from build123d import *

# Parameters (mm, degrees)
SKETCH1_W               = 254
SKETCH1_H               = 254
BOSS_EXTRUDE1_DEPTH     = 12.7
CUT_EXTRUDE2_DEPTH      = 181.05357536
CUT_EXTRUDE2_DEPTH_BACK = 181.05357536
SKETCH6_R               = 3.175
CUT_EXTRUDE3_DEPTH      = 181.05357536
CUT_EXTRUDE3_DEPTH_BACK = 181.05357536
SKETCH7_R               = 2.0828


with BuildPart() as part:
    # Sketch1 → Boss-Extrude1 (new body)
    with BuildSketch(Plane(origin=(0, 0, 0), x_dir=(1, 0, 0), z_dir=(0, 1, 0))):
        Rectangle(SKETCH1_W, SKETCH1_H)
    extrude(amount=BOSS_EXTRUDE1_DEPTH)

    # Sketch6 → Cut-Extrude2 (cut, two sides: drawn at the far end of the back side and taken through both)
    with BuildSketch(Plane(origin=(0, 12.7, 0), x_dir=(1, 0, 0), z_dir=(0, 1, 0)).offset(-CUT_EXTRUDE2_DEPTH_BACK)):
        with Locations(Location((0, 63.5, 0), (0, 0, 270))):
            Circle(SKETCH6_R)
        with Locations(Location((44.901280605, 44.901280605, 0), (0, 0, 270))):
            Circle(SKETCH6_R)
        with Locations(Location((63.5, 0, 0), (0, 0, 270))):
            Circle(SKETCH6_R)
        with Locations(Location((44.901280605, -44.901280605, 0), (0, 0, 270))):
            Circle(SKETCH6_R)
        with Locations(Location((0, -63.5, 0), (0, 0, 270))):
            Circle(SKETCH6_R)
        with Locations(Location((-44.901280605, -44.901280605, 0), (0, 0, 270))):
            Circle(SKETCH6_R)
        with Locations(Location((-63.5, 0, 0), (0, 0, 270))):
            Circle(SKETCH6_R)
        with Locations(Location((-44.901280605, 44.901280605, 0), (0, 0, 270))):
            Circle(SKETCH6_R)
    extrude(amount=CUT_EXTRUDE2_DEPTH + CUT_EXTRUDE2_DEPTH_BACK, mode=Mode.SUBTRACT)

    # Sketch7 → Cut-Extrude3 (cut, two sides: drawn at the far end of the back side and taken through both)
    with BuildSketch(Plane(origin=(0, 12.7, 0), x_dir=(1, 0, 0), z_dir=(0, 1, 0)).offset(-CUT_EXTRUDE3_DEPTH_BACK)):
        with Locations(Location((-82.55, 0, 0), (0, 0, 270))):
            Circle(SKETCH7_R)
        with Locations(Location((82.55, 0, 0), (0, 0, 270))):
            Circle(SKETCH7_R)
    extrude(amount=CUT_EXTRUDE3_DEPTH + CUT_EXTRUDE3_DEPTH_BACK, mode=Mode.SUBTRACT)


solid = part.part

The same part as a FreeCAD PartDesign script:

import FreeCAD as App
import Part
import Sketcher
from FreeCAD import Vector
Q = App.Units.Quantity


def add_polygon(sketch, points):
    """Adds a closed chain of lines whose ends are joined by coincident constraints."""
    first, n = sketch.GeometryCount, len(points)
    for a, b in zip(points, points[1:] + points[:1]):
        sketch.addGeometry(Part.LineSegment(App.Vector(*a, 0), App.Vector(*b, 0)), False)
    for i in range(n):
        sketch.addConstraint(Sketcher.Constraint("Coincident", first + i, 2, first + (i + 1) % n, 1))

doc = App.newDocument("Part")
body = doc.addObject("PartDesign::Body", "Body")

# Sketch on XZ plane
sketch1 = body.newObject("Sketcher::SketchObject", "Sketch")
sketch1.AttachmentSupport = (doc.getObject("XZ_Plane"), [""])
sketch1.MapMode = "FlatFace"
add_polygon(sketch1, [(-127, -127), (-127, 127), (127, 127), (127, -127)])  # lines 0-3
sketch1.addConstraint(Sketcher.Constraint("Vertical", 0))
sketch1.addConstraint(Sketcher.Constraint("Horizontal", 1))
sketch1.addConstraint(Sketcher.Constraint("Vertical", 2))
sketch1.addConstraint(Sketcher.Constraint("Horizontal", 3))
sketch1.addConstraint(Sketcher.Constraint("Symmetric", 0, 2, 2, 2, -1, 1))
sketch1.addConstraint(Sketcher.Constraint("Equal", 3, 0))
sketch1.addConstraint(Sketcher.Constraint("DistanceX", 1, 1, 1, 2, Q("10 in")))
pad1 = body.newObject("PartDesign::Pad", "Pad")
pad1.Profile = sketch1
pad1.Length = Q("0.5 in")
pad1.Reversed = True

# Sketch on XZ plane
sketch2 = body.newObject("Sketcher::SketchObject", "Sketch001")
sketch2.AttachmentSupport = (doc.getObject("XZ_Plane"), [""])
sketch2.MapMode = "FlatFace"
sketch2.AttachmentOffset = App.Placement(Vector(0, 0, -0.5 * 25.4), App.Rotation())
sketch2.addGeometry(Part.Circle(Vector(0, -63.5, 0), Vector(0, 0, 1), 3.2), False)
sketch2.addGeometry(Part.Circle(Vector(44.9, -44.9, 0), Vector(0, 0, 1), 3.2), False)
sketch2.addGeometry(Part.Circle(Vector(63.5, 0, 0), Vector(0, 0, 1), 3.2), False)
sketch2.addGeometry(Part.Circle(Vector(44.9, 44.9, 0), Vector(0, 0, 1), 3.2), False)
sketch2.addGeometry(Part.Circle(Vector(0, 63.5, 0), Vector(0, 0, 1), 3.2), False)
sketch2.addGeometry(Part.Circle(Vector(-44.9, 44.9, 0), Vector(0, 0, 1), 3.2), False)
sketch2.addGeometry(Part.Circle(Vector(-63.5, 0, 0), Vector(0, 0, 1), 3.2), False)
sketch2.addGeometry(Part.Circle(Vector(-44.9, -44.9, 0), Vector(0, 0, 1), 3.2), False)
sketch2.addConstraint(Sketcher.Constraint("Equal", 0, 1))
sketch2.addConstraint(Sketcher.Constraint("Equal", 1, 2))
sketch2.addConstraint(Sketcher.Constraint("Equal", 2, 3))
sketch2.addConstraint(Sketcher.Constraint("Equal", 3, 4))
sketch2.addConstraint(Sketcher.Constraint("Equal", 4, 5))
sketch2.addConstraint(Sketcher.Constraint("Equal", 5, 6))
sketch2.addConstraint(Sketcher.Constraint("Equal", 6, 7))
sketch2.addConstraint(Sketcher.Constraint("Symmetric", 0, 3, 4, 3, -1, 1))
sketch2.addConstraint(Sketcher.Constraint("Symmetric", 1, 3, 5, 3, -1, 1))
sketch2.addConstraint(Sketcher.Constraint("Symmetric", 2, 3, 6, 3, -1, 1))
sketch2.addConstraint(Sketcher.Constraint("Symmetric", 3, 3, 7, 3, -1, 1))
sketch2.addConstraint(Sketcher.Constraint("Symmetric", 3, 3, 5, 3, -2))
sketch2.addConstraint(Sketcher.Constraint("PointOnObject", 0, 3, -2))
sketch2.addConstraint(Sketcher.Constraint("PointOnObject", 2, 3, -1))
sketch2.addConstraint(Sketcher.Constraint("Diameter", 0, Q("0.25 in")))
sketch2.addConstraint(Sketcher.Constraint("DistanceY", 0, 3, 4, 3, Q("5 in")))
sketch2.addConstraint(Sketcher.Constraint("DistanceX", -1, 1, 2, 3, Q("2.5 in")))
sketch2.addConstraint(Sketcher.Constraint("DistanceX", -1, 1, 1, 3, 44.901281))
sketch2.addConstraint(Sketcher.Constraint("DistanceY", 1, 3, -1, 1, 44.901281))
pocket1 = body.newObject("PartDesign::Pocket", "Pocket")
pocket1.Profile = sketch2
pocket1.Type = "ThroughAll"
pocket1.Midplane = True

# Sketch on XZ plane
sketch3 = body.newObject("Sketcher::SketchObject", "Sketch002")
sketch3.AttachmentSupport = (doc.getObject("XZ_Plane"), [""])
sketch3.MapMode = "FlatFace"
sketch3.AttachmentOffset = App.Placement(Vector(0, 0, -0.5 * 25.4), App.Rotation())
sketch3.addGeometry(Part.Circle(Vector(-82.5, 0, 0), Vector(0, 0, 1), 2.1), False)
sketch3.addGeometry(Part.Circle(Vector(82.5, 0, 0), Vector(0, 0, 1), 2.1), False)
sketch3.addConstraint(Sketcher.Constraint("Equal", 0, 1))
sketch3.addConstraint(Sketcher.Constraint("Symmetric", 0, 3, 1, 3, -1, 1))
sketch3.addConstraint(Sketcher.Constraint("PointOnObject", 0, 3, -1))
sketch3.addConstraint(Sketcher.Constraint("Diameter", 0, Q("0.164 in")))
sketch3.addConstraint(Sketcher.Constraint("DistanceX", 0, 3, 1, 3, Q("6.5 in")))
pocket2 = body.newObject("PartDesign::Pocket", "Pocket001")
pocket2.Profile = sketch3
pocket2.Type = "ThroughAll"
pocket2.Midplane = True

doc.recompute()
